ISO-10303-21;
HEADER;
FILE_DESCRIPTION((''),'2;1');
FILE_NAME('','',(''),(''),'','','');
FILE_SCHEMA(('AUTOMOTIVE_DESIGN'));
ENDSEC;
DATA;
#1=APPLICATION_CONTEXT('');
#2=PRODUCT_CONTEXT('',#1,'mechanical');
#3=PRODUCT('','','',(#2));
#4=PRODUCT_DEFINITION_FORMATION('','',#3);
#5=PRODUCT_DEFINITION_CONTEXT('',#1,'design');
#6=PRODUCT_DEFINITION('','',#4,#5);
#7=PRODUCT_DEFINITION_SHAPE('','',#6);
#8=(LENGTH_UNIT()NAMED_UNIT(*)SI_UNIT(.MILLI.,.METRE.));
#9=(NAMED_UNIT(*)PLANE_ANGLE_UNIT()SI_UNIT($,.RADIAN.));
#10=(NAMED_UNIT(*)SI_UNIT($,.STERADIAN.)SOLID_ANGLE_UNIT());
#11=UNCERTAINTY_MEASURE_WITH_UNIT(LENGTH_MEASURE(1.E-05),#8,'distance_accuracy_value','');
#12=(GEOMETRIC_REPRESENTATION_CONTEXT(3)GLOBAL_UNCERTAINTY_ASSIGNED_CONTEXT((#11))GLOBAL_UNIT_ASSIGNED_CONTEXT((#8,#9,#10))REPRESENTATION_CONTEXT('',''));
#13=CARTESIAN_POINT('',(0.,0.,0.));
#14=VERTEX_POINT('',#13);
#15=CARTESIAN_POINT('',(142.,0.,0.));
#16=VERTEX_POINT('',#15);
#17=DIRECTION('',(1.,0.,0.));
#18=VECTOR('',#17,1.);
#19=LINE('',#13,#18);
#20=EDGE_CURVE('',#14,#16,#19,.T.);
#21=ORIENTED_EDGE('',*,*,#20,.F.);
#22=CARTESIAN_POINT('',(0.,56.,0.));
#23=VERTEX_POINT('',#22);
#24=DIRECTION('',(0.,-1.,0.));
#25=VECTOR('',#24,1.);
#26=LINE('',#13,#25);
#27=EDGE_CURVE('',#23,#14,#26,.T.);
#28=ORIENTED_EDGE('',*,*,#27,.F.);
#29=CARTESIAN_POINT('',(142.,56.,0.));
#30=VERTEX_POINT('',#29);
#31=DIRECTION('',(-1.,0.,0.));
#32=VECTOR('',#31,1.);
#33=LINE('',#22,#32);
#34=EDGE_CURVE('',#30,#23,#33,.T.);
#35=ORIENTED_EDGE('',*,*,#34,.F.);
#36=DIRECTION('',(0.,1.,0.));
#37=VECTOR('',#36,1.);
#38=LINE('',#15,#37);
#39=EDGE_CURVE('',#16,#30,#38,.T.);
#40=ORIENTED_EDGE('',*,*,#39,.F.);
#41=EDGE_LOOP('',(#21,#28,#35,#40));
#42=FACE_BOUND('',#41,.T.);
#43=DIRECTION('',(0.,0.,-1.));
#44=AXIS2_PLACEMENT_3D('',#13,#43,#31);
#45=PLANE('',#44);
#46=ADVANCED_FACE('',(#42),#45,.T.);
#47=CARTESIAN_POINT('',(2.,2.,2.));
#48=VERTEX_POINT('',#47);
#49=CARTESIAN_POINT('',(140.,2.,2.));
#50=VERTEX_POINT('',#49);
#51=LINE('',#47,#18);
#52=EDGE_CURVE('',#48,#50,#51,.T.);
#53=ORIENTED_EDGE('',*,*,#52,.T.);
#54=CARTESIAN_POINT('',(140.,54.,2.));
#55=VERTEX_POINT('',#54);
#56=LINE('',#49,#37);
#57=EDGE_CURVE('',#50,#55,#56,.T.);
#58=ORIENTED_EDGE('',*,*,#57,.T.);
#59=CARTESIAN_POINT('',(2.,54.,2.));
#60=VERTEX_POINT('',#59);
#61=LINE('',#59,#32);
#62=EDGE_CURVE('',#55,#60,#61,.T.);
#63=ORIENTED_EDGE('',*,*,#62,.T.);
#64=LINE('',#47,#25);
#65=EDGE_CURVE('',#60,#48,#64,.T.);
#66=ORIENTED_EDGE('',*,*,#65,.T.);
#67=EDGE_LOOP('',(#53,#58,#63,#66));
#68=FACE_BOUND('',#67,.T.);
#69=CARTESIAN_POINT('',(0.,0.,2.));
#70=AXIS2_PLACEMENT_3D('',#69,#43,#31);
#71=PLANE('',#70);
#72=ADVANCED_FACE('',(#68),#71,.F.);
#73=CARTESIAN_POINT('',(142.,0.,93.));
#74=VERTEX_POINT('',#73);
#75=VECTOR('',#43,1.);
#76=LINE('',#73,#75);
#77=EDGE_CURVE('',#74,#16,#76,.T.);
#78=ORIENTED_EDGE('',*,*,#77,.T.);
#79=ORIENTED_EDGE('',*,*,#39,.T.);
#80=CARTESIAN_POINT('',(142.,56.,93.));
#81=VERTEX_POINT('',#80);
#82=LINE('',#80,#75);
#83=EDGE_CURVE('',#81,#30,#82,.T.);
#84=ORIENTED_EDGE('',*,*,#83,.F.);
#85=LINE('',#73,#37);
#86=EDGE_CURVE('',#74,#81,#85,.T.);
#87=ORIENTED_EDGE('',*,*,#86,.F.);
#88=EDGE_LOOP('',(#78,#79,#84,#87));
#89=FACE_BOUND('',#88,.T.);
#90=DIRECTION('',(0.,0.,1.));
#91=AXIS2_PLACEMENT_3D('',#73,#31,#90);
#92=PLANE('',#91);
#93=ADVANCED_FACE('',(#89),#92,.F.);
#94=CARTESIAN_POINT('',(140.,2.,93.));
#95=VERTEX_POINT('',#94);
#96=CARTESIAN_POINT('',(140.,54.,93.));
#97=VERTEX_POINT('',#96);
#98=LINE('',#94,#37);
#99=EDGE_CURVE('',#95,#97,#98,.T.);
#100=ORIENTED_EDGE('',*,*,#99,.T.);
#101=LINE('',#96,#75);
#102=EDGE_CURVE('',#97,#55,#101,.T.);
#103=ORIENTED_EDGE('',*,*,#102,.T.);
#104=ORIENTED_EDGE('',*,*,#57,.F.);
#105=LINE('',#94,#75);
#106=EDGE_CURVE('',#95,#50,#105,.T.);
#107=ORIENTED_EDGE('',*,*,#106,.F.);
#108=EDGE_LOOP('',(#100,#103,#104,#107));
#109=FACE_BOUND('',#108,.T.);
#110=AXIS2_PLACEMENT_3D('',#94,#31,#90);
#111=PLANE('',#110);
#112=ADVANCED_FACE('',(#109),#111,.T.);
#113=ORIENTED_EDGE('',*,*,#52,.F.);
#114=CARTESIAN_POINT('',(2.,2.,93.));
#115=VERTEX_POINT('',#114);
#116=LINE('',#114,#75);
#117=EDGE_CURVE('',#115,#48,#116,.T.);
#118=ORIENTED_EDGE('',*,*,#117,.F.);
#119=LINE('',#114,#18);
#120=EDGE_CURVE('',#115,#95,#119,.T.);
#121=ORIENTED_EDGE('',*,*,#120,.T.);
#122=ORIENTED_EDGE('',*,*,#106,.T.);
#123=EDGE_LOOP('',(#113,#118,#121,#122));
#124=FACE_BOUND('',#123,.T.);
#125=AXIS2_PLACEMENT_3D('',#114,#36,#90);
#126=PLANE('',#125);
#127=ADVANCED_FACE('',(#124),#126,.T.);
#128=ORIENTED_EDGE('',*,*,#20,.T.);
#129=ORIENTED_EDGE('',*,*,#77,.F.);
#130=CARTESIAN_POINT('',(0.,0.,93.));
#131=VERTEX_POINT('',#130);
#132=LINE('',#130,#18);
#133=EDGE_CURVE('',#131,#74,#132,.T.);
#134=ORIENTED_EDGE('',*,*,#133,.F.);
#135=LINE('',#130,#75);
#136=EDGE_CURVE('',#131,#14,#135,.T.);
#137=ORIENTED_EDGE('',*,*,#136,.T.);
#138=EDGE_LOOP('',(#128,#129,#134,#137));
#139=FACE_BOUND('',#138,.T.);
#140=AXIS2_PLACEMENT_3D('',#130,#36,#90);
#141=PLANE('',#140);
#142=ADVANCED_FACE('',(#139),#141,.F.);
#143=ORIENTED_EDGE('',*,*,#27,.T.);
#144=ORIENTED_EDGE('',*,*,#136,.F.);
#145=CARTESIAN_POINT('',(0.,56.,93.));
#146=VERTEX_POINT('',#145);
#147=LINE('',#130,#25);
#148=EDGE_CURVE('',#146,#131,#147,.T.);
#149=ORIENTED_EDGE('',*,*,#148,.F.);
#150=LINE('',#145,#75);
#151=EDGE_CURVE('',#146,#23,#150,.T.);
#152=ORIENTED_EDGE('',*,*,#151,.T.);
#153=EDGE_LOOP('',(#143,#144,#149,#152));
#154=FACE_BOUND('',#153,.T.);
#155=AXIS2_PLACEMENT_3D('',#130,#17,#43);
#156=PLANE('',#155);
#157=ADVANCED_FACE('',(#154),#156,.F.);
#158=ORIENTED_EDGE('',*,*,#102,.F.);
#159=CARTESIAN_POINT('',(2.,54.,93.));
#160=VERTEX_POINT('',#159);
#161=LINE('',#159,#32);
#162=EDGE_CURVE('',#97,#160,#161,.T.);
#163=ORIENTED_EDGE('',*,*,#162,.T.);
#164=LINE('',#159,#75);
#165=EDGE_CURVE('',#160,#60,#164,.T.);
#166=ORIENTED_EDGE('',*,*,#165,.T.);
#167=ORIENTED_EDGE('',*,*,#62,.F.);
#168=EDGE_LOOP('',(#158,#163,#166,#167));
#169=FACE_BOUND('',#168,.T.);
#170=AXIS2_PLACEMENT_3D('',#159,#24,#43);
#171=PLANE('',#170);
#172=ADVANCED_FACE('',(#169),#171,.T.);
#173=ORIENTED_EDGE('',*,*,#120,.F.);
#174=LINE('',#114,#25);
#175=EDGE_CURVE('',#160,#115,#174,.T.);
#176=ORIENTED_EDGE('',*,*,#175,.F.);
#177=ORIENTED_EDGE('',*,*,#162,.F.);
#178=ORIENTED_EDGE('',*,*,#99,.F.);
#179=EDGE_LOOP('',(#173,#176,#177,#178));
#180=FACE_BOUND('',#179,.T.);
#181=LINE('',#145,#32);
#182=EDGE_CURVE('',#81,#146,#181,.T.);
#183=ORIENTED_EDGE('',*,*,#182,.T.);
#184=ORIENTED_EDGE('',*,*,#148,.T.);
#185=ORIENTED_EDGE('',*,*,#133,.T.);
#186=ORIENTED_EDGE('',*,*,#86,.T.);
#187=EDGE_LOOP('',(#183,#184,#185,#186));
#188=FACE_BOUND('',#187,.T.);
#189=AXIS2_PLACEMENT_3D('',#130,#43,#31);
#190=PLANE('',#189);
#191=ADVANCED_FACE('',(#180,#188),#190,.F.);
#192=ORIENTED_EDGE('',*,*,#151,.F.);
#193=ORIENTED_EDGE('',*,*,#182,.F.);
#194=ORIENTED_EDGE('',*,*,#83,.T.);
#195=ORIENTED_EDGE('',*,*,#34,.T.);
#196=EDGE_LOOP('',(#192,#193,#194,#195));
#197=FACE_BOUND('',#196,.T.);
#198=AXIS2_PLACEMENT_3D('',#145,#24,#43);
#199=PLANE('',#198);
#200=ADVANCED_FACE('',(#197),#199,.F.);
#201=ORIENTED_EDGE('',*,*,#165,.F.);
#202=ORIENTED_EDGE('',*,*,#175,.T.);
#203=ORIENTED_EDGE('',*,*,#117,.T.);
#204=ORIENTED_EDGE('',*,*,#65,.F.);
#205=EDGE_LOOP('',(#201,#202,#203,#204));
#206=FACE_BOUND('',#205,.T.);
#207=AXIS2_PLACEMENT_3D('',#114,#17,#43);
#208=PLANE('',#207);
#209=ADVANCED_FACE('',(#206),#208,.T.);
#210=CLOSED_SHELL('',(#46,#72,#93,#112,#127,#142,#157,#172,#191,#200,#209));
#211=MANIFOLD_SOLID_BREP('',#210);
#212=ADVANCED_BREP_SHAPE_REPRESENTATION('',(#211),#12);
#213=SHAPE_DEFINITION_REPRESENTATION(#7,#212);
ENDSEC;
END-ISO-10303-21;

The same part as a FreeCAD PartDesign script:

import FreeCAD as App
import Part
import Sketcher
Q = App.Units.Quantity

doc = App.newDocument("Part")
params = doc.addObject("Spreadsheet::Sheet", "Params")
for row, (alias, value) in enumerate([
    ("sketch1_width", "142 mm"),
    ("sketch1_width2", "138 mm"),
    ("sketch1_height", "56 mm"),
    ("sketch1_height2", "52 mm"),
    ("pad1_length", "93 mm"),
    ("sketch2_width", "138 mm"),
    ("sketch2_height", "52 mm"),
    ("pad2_length", "2 mm"),
], start=1):
    params.set(f"A{row}", alias)
    params.set(f"B{row}", "=" + value)
    params.setAlias(f"B{row}", alias)

body = doc.addObject("PartDesign::Body", "Body")

# Sketch on XY plane
sketch1 = doc.addObject("Sketcher::SketchObject", "Sketch")
body.addObject(sketch1)
sketch1.AttachmentSupport = (doc.XY_Plane, [""])
sketch1.MapMode = "FlatFace"
sketch1.addGeometry([
    Part.LineSegment(App.Vector(0, 56, 0), App.Vector(0, 0, 0)),  # 0
    Part.LineSegment(App.Vector(0, 0, 0), App.Vector(142, 0, 0)),  # 1
    Part.LineSegment(App.Vector(142, 0, 0), App.Vector(142, 56, 0)),  # 2
    Part.LineSegment(App.Vector(142, 56, 0), App.Vector(0, 56, 0)),  # 3
    Part.LineSegment(App.Vector(140, 2, 0), App.Vector(2, 2, 0)),  # 4
    Part.LineSegment(App.Vector(2, 2, 0), App.Vector(2, 54, 0)),  # 5
    Part.LineSegment(App.Vector(2, 54, 0), App.Vector(140, 54, 0)),  # 6
    Part.LineSegment(App.Vector(140, 54, 0), App.Vector(140, 2, 0)),  # 7
], False)
sketch1.addConstraint([
    Sketcher.Constraint("Coincident", 0, 2, 1, 1),
    Sketcher.Constraint("Coincident", 1, 2, 2, 1),
    Sketcher.Constraint("Coincident", 2, 2, 3, 1),
    Sketcher.Constraint("Coincident", 3, 2, 0, 1),
    Sketcher.Constraint("Coincident", 4, 2, 5, 1),
    Sketcher.Constraint("Coincident", 5, 2, 6, 1),
    Sketcher.Constraint("Coincident", 6, 2, 7, 1),
    Sketcher.Constraint("Coincident", 7, 2, 4, 1),
    Sketcher.Constraint("Vertical", 0),
    Sketcher.Constraint("Horizontal", 1),
    Sketcher.Constraint("Vertical", 2),
    Sketcher.Constraint("Horizontal", 3),
    Sketcher.Constraint("Horizontal", 4),
    Sketcher.Constraint("Vertical", 5),
    Sketcher.Constraint("Horizontal", 6),
    Sketcher.Constraint("Vertical", 7),
    Sketcher.Constraint("Coincident", 0, 2, -1, 1),
    Sketcher.Constraint("DistanceX", 1, 1, 1, 2, Q("142 mm")),
    Sketcher.Constraint("DistanceX", 4, 2, 4, 1, Q("138 mm")),
    Sketcher.Constraint("DistanceY", 0, 2, 0, 1, Q("56 mm")),
    Sketcher.Constraint("DistanceY", 5, 1, 5, 2, Q("52 mm")),
    Sketcher.Constraint("DistanceX", -1, 1, 4, 2, Q("2 mm")),
    Sketcher.Constraint("DistanceY", -1, 1, 4, 2, Q("2 mm")),
])
sketch1.setExpression("Constraints[17]", "Params.sketch1_width")
sketch1.setExpression("Constraints[18]", "Params.sketch1_width2")
sketch1.setExpression("Constraints[19]", "Params.sketch1_height")
sketch1.setExpression("Constraints[20]", "Params.sketch1_height2")
pad1 = doc.addObject("PartDesign::Pad", "Pad")
body.addObject(pad1)
pad1.Profile = sketch1
pad1.setExpression("Length", "Params.pad1_length")

# Sketch on XY plane
sketch2 = doc.addObject("Sketcher::SketchObject", "Sketch001")
body.addObject(sketch2)
sketch2.AttachmentSupport = (doc.XY_Plane, [""])
sketch2.MapMode = "FlatFace"
sketch2.addGeometry([
    Part.LineSegment(App.Vector(2, 54, 0), App.Vector(2, 2, 0)),
    Part.LineSegment(App.Vector(2, 2, 0), App.Vector(140, 2, 0)),
    Part.LineSegment(App.Vector(140, 2, 0), App.Vector(140, 54, 0)),
    Part.LineSegment(App.Vector(140, 54, 0), App.Vector(2, 54, 0)),
], False)
sketch2.addConstraint([
    Sketcher.Constraint("Coincident", 0, 2, 1, 1),
    Sketcher.Constraint("Coincident", 1, 2, 2, 1),
    Sketcher.Constraint("Coincident", 2, 2, 3, 1),
    Sketcher.Constraint("Coincident", 3, 2, 0, 1),
    Sketcher.Constraint("Vertical", 0),
    Sketcher.Constraint("Horizontal", 1),
    Sketcher.Constraint("Vertical", 2),
    Sketcher.Constraint("Horizontal", 3),
    Sketcher.Constraint("DistanceX", 1, 1, 1, 2, Q("138 mm")),
    Sketcher.Constraint("DistanceY", 0, 2, 0, 1, Q("52 mm")),
    Sketcher.Constraint("DistanceX", -1, 1, 0, 2, Q("2 mm")),
    Sketcher.Constraint("DistanceY", -1, 1, 0, 2, Q("2 mm")),
])
sketch2.setExpression("Constraints[8]", "Params.sketch2_width")
sketch2.setExpression("Constraints[9]", "Params.sketch2_height")
pad2 = doc.addObject("PartDesign::Pad", "Pad001")
body.addObject(pad2)
pad2.Profile = sketch2
pad2.setExpression("Length", "Params.pad2_length")

doc.recompute()
